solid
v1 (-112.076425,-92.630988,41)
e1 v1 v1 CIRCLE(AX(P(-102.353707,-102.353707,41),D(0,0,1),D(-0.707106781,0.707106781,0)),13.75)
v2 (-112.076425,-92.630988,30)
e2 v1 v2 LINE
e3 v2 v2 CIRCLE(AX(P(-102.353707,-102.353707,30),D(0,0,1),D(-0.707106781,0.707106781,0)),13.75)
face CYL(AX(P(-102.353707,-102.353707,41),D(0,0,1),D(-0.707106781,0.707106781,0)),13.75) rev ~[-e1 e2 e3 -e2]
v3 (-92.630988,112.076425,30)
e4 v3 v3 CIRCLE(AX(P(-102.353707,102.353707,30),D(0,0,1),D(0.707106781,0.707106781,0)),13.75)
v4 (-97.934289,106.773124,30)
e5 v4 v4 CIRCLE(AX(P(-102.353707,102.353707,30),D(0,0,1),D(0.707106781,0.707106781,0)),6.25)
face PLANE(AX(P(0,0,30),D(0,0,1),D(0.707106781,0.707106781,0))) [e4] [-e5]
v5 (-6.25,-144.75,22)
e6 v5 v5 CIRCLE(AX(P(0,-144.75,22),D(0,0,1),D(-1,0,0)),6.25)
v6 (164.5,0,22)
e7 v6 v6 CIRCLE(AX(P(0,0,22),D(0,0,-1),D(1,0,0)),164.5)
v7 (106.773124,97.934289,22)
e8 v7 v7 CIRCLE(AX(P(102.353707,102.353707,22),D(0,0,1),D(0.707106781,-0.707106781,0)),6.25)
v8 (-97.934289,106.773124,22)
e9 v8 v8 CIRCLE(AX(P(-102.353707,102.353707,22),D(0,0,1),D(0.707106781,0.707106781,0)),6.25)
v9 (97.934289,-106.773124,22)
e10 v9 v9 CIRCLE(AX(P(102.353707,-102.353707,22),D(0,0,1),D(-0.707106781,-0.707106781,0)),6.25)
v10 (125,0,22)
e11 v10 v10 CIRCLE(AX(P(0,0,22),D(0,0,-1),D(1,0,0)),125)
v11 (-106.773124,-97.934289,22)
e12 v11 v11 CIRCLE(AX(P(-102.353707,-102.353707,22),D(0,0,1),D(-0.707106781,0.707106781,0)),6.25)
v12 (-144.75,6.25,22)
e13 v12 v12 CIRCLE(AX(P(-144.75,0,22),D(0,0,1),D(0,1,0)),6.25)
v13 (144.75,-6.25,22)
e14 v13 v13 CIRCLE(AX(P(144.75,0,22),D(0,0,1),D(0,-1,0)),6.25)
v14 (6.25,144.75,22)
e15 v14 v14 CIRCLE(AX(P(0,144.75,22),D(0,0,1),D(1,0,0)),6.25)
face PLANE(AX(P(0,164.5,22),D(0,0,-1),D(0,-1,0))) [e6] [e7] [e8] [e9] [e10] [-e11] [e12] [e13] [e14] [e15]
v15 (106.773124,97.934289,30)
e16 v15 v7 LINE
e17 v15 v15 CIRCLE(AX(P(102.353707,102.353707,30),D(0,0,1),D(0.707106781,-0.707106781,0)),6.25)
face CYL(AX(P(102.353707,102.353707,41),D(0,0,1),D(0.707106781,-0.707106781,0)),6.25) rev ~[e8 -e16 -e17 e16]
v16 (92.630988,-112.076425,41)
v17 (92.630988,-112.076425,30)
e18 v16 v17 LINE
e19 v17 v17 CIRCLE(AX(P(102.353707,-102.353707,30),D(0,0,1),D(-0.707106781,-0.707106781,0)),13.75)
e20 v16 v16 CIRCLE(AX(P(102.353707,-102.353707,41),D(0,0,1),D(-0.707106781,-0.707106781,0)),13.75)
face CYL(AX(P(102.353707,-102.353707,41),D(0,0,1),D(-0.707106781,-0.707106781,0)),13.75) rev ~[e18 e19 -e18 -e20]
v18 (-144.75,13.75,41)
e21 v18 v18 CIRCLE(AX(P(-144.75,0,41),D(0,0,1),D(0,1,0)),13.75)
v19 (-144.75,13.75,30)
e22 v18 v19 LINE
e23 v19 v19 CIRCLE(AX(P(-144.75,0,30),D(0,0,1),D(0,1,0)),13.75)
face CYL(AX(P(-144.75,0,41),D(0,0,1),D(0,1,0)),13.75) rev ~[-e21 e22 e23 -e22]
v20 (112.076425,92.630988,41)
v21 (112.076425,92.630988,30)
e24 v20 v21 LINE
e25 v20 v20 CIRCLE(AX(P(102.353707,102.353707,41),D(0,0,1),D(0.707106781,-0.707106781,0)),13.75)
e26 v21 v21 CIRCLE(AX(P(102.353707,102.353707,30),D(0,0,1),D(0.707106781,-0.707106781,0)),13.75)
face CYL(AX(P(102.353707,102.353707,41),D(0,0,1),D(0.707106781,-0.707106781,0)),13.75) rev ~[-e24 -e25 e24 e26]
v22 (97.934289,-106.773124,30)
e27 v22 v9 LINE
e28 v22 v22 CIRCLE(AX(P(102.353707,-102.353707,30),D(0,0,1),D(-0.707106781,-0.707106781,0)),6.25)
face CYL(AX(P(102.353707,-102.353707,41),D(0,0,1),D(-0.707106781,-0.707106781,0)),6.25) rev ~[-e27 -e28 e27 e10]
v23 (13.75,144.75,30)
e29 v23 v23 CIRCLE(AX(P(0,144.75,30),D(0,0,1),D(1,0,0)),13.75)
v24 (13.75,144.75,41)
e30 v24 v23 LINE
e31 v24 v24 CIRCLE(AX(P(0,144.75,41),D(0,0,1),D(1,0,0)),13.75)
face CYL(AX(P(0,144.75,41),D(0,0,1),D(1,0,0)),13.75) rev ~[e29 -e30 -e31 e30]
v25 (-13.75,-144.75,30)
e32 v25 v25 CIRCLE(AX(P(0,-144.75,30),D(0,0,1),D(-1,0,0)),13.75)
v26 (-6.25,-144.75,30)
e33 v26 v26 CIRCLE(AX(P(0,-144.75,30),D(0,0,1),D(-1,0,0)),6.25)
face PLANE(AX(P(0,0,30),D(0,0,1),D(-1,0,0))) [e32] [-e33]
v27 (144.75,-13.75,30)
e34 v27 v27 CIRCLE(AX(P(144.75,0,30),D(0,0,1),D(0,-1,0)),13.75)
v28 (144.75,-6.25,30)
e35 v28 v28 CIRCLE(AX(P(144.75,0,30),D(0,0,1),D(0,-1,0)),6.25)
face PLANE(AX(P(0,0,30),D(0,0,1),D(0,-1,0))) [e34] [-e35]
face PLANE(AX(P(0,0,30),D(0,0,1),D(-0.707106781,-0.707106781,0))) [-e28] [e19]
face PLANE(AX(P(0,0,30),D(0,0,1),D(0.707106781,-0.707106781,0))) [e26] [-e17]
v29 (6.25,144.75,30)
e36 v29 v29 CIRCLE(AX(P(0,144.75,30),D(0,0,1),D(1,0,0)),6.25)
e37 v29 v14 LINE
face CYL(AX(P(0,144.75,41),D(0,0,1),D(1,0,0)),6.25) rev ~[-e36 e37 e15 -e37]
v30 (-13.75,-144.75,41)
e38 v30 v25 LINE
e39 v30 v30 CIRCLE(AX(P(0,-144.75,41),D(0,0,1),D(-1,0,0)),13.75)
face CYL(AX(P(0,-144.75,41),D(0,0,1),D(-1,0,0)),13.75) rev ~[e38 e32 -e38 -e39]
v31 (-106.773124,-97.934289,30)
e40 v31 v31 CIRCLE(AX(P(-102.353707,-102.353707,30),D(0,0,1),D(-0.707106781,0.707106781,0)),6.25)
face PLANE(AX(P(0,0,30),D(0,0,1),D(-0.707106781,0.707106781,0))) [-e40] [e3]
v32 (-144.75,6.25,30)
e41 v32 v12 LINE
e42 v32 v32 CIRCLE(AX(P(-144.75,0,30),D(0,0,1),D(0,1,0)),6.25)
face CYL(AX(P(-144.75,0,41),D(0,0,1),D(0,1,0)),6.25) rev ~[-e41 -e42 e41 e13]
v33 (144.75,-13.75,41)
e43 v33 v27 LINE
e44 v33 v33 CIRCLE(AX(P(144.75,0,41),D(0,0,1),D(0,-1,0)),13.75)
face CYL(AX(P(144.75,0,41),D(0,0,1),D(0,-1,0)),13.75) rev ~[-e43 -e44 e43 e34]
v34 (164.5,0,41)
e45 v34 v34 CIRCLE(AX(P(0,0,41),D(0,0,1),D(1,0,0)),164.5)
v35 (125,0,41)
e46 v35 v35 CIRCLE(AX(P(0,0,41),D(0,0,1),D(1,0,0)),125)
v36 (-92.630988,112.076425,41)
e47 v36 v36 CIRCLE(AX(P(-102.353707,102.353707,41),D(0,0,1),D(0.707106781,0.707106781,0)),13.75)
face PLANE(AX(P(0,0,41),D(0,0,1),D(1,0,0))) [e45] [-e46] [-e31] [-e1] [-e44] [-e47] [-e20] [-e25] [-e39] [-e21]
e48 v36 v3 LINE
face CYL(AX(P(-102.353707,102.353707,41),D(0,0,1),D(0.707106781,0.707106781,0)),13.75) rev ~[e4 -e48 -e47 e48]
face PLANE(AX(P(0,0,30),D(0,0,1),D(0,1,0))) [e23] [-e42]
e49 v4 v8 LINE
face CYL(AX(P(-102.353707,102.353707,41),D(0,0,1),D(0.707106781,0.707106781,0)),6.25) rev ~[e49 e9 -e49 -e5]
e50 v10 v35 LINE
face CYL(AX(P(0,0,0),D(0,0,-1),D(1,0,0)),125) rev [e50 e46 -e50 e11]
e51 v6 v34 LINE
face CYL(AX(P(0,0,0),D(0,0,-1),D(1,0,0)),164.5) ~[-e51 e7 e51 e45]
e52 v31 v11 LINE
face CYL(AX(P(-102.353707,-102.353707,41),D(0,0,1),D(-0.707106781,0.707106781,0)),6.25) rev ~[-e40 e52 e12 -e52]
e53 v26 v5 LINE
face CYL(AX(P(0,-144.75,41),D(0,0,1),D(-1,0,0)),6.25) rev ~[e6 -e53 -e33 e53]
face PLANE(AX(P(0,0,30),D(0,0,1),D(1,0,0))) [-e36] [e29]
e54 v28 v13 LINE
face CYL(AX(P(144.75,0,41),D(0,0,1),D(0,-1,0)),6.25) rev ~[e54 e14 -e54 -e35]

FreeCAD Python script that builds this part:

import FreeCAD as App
import Part
import Sketcher
Q = App.Units.Quantity

doc = App.newDocument("Part")
body = doc.addObject("PartDesign::Body", "Body")

# Sketch on XY plane
sketch1 = body.newObject("Sketcher::SketchObject", "Sketch")
sketch1.AttachmentSupport = (doc.getObject("XY_Plane"), [""])
sketch1.MapMode = "FlatFace"
sketch1.addGeometry([
    Part.Circle(App.Vector(0, 0, 0), App.Vector(0, 0, 1), 164.5),
    Part.Circle(App.Vector(0, 0, 0), App.Vector(0, 0, 1), 125),
], False)
sketch1.addConstraint([
    Sketcher.Constraint("Coincident", 0, 3, -1, 1),
    Sketcher.Constraint("Coincident", 1, 3, -1, 1),
    Sketcher.Constraint("Diameter", 1, Q("250 mm")),
    Sketcher.Constraint("Diameter", 0, Q("329 mm")),
])
pad1 = body.newObject("PartDesign::Pad", "Pad")
pad1.Profile = sketch1
pad1.Length = 41

# Sketch on XY plane
sketch2 = body.newObject("Sketcher::SketchObject", "Sketch001")
sketch2.AttachmentSupport = (doc.getObject("XY_Plane"), [""])
sketch2.MapMode = "FlatFace"
sketch2.AttachmentOffset = App.Placement(App.Vector(0, 0, 41), App.Rotation())
sketch2.addGeometry(Part.Circle(App.Vector(0, 144.75, 0), App.Vector(0, 0, 1), 6.25), False)
sketch2.addConstraint([
    Sketcher.Constraint("PointOnObject", 0, 3, -2),
    Sketcher.Constraint("Diameter", 0, Q("12.5 mm")),
    Sketcher.Constraint("DistanceY", -1, 1, 0, 3, Q("144.75 mm")),
])
pocket1 = body.newObject("PartDesign::Pocket", "Pocket")
pocket1.Profile = sketch2
pocket1.Type = "ThroughAll"

# Sketch on XY plane
sketch3 = body.newObject("Sketcher::SketchObject", "Sketch002")
sketch3.AttachmentSupport = (doc.getObject("XY_Plane"), [""])
sketch3.MapMode = "FlatFace"
sketch3.AttachmentOffset = App.Placement(App.Vector(0, 0, 41), App.Rotation())
sketch3.addGeometry([
    Part.Circle(App.Vector(0, 144.75, 0), App.Vector(0, 0, 1), 13.75),
    Part.Circle(App.Vector(0, 144.75, 0), App.Vector(0, 0, 1), 6.25),
], False)
sketch3.addConstraint([
    Sketcher.Constraint("Coincident", 1, 3, 0, 3),
    Sketcher.Constraint("PointOnObject", 0, 3, -2),
    Sketcher.Constraint("Diameter", 0, Q("27.5 mm")),
    Sketcher.Constraint("Diameter", 1, Q("12.5 mm")),
    Sketcher.Constraint("DistanceY", -1, 1, 0, 3, Q("144.75 mm")),
])
pocket2 = body.newObject("PartDesign::Pocket", "Pocket001")
pocket2.Profile = sketch3
pocket2.Length = 11
doc.recompute()

polarpattern = body.newObject("PartDesign::PolarPattern", "PolarPattern")
polarpattern.Originals = [pocket1, pocket2]
polarpattern.Axis = (doc.getObject("Z_Axis"), [""])
polarpattern.Angle = 360
polarpattern.Occurrences = 8
body.Tip = polarpattern

# Sketch on XY plane
sketch4 = body.newObject("Sketcher::SketchObject", "Sketch003")
sketch4.AttachmentSupport = (doc.getObject("XY_Plane"), [""])
sketch4.MapMode = "FlatFace"
sketch4.addGeometry([
    Part.Circle(App.Vector(0, 0, 0), App.Vector(0, 0, 1), 169.5),
    Part.Circle(App.Vector(0, 0, 0), App.Vector(0, 0, 1), 164.5),
], False)
sketch4.addConstraint([
    Sketcher.Constraint("Coincident", 0, 3, -1, 1),
    Sketcher.Constraint("Coincident", 1, 3, -1, 1),
    Sketcher.Constraint("Diameter", 0, Q("339 mm")),
    Sketcher.Constraint("Diameter", 1, Q("329 mm")),
])
pad2 = body.newObject("PartDesign::Pad", "Pad001")
pad2.Profile = sketch4
pad2.Length = 10

# Sketch on YZ plane
sketch5 = body.newObject("Sketcher::SketchObject", "Sketch004")
sketch5.AttachmentSupport = (doc.getObject("YZ_Plane"), [""])
sketch5.MapMode = "FlatFace"
sketch5.addGeometry([
    Part.LineSegment(App.Vector(169.5, 10, 0), App.Vector(164.5, 10, 0)),  # 0
    Part.LineSegment(App.Vector(164.5, 10, 0), App.Vector(164.5, 22, 0)),  # 1
    Part.LineSegment(App.Vector(164.5, 22, 0), App.Vector(-164.5, 22, 0)),  # 2
    Part.LineSegment(App.Vector(-164.5, 22, 0), App.Vector(-164.5, 10, 0)),  # 3
    Part.LineSegment(App.Vector(-164.5, 10, 0), App.Vector(-169.5, 10, 0)),  # 4
    Part.LineSegment(App.Vector(-169.5, 10, 0), App.Vector(-169.5, 0, 0)),  # 5
    Part.LineSegment(App.Vector(-169.5, 0, 0), App.Vector(169.5, 0, 0)),  # 6
    Part.LineSegment(App.Vector(169.5, 0, 0), App.Vector(169.5, 10, 0)),  # 7
], False)
sketch5.addConstraint([
    Sketcher.Constraint("Coincident", 0, 2, 1, 1),
    Sketcher.Constraint("Coincident", 1, 2, 2, 1),
    Sketcher.Constraint("Coincident", 2, 2, 3, 1),
    Sketcher.Constraint("Coincident", 3, 2, 4, 1),
    Sketcher.Constraint("Coincident", 4, 2, 5, 1),
    Sketcher.Constraint("Coincident", 5, 2, 6, 1),
    Sketcher.Constraint("Coincident", 6, 2, 7, 1),
    Sketcher.Constraint("Coincident", 7, 2, 0, 1),
    Sketcher.Constraint("Horizontal", 0),
    Sketcher.Constraint("Vertical", 1),
    Sketcher.Constraint("Horizontal", 2),
    Sketcher.Constraint("Vertical", 3),
    Sketcher.Constraint("Horizontal", 4),
    Sketcher.Constraint("Vertical", 5),
    Sketcher.Constraint("Horizontal", 6),
    Sketcher.Constraint("Vertical", 7),
    Sketcher.Constraint("Symmetric", 5, 2, 6, 2, -1, 1),
    Sketcher.Constraint("Symmetric", 0, 2, 3, 2, -2),
    Sketcher.Constraint("DistanceY", -1, 1, 1, 2, Q("22 mm")),
    Sketcher.Constraint("DistanceX", 0, 2, 0, 1, Q("5 mm")),
    Sketcher.Constraint("DistanceX", 2, 2, 2, 1, Q("329 mm")),
    Sketcher.Constraint("DistanceY", 1, 1, 1, 2, Q("12 mm")),
])
pocket3 = body.newObject("PartDesign::Pocket", "Pocket002")
pocket3.Profile = sketch5
pocket3.Type = "ThroughAll"
pocket3.Midplane = True

doc.recompute()
